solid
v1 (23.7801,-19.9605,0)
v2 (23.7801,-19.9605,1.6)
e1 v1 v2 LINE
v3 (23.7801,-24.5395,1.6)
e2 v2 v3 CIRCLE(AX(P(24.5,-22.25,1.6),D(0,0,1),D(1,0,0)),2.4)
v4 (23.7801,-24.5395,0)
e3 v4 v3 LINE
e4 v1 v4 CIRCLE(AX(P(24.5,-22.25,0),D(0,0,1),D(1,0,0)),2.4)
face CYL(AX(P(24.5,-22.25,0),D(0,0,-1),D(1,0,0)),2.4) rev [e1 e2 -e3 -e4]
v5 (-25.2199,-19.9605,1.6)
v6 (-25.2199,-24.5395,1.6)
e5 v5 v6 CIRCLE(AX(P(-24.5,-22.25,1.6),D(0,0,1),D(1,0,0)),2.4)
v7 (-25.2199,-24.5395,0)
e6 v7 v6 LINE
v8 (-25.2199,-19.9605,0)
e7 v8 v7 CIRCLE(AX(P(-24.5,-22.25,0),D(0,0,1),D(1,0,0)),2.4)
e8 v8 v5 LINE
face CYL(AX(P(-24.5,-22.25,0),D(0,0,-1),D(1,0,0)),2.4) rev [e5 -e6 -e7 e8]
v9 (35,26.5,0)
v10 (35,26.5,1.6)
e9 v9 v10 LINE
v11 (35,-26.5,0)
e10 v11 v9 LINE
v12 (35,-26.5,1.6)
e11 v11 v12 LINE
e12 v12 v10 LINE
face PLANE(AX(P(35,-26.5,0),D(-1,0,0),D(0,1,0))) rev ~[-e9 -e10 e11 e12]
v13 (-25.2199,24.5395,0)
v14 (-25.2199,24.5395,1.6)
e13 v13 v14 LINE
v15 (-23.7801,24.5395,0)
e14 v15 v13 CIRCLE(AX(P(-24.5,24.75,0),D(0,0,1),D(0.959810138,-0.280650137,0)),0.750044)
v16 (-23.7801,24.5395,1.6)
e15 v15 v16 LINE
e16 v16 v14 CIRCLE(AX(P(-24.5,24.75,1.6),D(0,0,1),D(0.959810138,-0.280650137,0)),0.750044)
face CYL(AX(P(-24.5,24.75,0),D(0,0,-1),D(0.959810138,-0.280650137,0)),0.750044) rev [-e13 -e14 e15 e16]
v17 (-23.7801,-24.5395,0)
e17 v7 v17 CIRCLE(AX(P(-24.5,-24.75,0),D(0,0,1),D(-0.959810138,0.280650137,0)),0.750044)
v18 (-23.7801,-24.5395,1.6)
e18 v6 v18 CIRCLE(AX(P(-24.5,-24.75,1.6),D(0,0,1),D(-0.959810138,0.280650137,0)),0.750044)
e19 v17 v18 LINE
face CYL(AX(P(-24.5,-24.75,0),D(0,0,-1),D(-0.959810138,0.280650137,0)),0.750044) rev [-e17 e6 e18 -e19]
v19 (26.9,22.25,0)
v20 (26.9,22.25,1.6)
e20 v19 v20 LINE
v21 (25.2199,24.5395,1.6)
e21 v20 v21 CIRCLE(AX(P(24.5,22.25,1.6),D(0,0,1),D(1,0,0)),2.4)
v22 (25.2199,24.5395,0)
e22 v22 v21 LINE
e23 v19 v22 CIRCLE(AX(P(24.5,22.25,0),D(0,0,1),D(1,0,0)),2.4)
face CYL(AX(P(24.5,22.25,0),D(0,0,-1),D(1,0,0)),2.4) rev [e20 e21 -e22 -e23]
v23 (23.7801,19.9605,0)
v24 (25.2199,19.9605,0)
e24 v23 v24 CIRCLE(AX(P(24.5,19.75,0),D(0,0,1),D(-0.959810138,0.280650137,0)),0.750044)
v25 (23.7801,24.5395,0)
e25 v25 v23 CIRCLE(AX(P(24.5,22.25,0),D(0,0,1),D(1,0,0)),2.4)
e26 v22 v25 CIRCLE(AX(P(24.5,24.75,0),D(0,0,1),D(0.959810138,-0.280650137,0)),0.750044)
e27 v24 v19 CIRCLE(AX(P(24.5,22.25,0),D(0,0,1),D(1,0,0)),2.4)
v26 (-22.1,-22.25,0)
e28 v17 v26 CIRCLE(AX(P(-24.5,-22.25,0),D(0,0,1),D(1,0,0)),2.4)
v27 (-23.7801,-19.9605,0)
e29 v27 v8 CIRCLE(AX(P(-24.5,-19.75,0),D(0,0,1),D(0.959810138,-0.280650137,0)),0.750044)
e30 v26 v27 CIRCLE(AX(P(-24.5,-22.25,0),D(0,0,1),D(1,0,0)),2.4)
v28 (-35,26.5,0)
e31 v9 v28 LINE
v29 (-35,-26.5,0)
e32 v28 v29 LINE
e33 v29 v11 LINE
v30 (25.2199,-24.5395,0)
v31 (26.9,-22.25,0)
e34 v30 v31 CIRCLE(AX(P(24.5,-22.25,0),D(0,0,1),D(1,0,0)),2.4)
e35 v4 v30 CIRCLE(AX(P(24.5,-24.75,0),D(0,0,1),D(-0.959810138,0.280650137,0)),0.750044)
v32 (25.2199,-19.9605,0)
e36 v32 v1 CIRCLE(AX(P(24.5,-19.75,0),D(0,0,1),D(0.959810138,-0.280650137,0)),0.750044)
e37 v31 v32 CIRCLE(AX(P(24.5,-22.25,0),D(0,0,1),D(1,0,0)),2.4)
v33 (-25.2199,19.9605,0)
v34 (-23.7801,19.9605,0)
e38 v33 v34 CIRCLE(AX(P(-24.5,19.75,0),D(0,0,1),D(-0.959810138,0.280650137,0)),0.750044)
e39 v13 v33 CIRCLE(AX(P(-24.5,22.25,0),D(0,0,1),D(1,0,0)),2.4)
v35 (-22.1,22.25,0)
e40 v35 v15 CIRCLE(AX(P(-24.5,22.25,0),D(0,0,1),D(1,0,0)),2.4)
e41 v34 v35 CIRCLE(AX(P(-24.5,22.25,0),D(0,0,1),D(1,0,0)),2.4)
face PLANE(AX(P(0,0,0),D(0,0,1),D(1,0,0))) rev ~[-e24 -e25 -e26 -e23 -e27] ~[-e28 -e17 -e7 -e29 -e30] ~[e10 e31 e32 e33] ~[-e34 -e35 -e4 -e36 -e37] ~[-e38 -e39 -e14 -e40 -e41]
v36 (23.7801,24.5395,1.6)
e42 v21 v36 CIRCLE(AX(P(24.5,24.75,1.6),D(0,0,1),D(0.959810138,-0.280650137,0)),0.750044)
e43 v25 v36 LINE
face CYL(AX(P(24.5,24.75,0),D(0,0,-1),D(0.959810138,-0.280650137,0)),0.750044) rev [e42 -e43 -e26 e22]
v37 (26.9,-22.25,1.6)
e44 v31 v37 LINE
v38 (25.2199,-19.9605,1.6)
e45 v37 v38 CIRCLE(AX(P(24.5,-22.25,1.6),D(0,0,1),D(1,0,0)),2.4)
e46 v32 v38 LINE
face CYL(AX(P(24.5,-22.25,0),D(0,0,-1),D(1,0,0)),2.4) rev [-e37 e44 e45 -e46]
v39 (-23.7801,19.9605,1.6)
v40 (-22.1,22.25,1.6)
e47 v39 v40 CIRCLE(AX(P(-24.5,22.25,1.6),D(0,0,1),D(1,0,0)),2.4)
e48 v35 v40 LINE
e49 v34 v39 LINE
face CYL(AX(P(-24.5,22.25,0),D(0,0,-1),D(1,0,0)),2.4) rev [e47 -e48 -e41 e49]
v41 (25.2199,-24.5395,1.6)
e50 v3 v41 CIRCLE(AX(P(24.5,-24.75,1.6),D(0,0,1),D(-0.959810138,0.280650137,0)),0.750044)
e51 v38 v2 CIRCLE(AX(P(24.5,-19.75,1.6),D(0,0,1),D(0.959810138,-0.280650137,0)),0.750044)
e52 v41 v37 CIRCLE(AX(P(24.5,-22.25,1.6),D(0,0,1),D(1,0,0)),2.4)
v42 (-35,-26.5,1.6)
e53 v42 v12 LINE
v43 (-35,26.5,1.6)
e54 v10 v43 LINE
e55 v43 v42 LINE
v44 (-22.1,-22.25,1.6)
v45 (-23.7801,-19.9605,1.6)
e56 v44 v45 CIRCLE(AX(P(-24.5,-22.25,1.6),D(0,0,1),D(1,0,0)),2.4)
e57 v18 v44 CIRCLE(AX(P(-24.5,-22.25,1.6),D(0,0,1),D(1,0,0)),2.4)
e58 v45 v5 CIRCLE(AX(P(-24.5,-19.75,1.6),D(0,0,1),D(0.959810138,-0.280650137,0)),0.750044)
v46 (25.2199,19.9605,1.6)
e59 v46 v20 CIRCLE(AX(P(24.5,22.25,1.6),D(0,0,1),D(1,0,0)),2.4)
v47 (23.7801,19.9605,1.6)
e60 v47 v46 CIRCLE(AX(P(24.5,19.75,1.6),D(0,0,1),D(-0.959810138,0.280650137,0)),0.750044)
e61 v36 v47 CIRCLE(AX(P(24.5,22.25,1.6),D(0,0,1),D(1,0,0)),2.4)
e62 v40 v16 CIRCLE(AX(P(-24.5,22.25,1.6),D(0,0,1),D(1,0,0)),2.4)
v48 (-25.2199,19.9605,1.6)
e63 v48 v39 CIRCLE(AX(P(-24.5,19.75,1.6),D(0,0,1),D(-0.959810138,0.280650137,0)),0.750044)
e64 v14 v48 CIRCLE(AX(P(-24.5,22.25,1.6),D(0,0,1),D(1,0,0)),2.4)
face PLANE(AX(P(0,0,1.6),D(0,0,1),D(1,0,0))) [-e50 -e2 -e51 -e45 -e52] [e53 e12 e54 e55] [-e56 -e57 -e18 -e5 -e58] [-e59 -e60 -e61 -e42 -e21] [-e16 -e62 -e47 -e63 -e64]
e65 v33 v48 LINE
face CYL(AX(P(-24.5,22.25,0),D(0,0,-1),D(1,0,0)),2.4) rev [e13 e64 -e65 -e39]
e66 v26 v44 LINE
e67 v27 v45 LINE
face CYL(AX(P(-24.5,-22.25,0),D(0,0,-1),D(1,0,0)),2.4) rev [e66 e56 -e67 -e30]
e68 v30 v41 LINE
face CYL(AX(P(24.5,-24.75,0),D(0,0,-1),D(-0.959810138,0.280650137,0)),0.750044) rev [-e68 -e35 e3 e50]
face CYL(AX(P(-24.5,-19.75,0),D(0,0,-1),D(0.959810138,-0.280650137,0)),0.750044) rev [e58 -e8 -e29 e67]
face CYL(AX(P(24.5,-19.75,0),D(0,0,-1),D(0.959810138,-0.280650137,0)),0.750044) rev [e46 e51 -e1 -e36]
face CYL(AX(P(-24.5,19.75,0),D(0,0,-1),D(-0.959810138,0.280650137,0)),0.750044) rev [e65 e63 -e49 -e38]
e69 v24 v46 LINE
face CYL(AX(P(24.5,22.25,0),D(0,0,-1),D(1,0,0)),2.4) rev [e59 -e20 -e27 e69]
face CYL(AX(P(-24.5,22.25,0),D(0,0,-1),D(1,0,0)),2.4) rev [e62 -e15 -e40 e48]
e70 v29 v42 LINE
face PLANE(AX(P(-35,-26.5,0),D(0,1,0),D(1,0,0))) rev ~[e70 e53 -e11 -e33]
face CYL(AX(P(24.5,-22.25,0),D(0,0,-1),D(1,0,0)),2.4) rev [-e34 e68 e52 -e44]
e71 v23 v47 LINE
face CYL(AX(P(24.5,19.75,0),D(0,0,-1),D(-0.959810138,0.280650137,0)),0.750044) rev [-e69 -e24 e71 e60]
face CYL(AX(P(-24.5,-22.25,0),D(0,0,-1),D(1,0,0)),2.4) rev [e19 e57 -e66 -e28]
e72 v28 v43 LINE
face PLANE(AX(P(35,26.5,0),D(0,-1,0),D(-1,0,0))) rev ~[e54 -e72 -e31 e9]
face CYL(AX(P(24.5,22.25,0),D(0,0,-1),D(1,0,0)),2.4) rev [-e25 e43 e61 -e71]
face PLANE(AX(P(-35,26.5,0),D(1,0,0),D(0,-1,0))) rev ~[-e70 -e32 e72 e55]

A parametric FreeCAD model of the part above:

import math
import FreeCAD as App
import Part
import Sketcher


def add_polygon(sketch, points):
    """Adds a closed chain of lines whose ends are joined by coincident constraints."""
    first, n = sketch.GeometryCount, len(points)
    for a, b in zip(points, points[1:] + points[:1]):
        sketch.addGeometry(Part.LineSegment(App.Vector(*a, 0), App.Vector(*b, 0)), False)
    for i in range(n):
        sketch.addConstraint(Sketcher.Constraint("Coincident", first + i, 2, first + (i + 1) % n, 1))

doc = App.newDocument("Part")
body = doc.addObject("PartDesign::Body", "Body")

# Sketch on XY plane
sketch1 = body.newObject("Sketcher::SketchObject", "Sketch")
sketch1.AttachmentSupport = (doc.getObject("XY_Plane"), [""])
sketch1.MapMode = "FlatFace"
add_polygon(sketch1, [(-35, 26.5), (-35, -26.5), (35, -26.5), (35, 26.5)])  # lines 0-3
sketch1.addGeometry(Part.ArcOfCircle(Part.Circle(App.Vector(-24.5, -22.2, 0), App.Vector(0, 0, 1), 2.4), math.radians(-73), math.radians(73)), False)  # 4
sketch1.addGeometry(Part.ArcOfCircle(Part.Circle(App.Vector(-24.5, -24.8, 0), App.Vector(0, 0, 1), 0.8), math.radians(164), math.radians(376)), False)  # 5
sketch1.addGeometry(Part.ArcOfCircle(Part.Circle(App.Vector(-24.5, -22.2, 0), App.Vector(0, 0, 1), 2.4), math.radians(107), math.radians(253)), False)  # 6
sketch1.addGeometry(Part.ArcOfCircle(Part.Circle(App.Vector(-24.5, -19.8, 0), App.Vector(0, 0, 1), 0.8), math.radians(-16), math.radians(196)), False)  # 7
sketch1.addGeometry(Part.ArcOfCircle(Part.Circle(App.Vector(24.5, -22.2, 0), App.Vector(0, 0, 1), 2.4), math.radians(-73), math.radians(73)), False)  # 8
sketch1.addGeometry(Part.ArcOfCircle(Part.Circle(App.Vector(24.5, -24.8, 0), App.Vector(0, 0, 1), 0.8), math.radians(164), math.radians(376)), False)  # 9
sketch1.addGeometry(Part.ArcOfCircle(Part.Circle(App.Vector(24.5, -22.2, 0), App.Vector(0, 0, 1), 2.4), math.radians(107), math.radians(253)), False)  # 10
sketch1.addGeometry(Part.ArcOfCircle(Part.Circle(App.Vector(24.5, -19.8, 0), App.Vector(0, 0, 1), 0.8), math.radians(-16), math.radians(196)), False)  # 11
sketch1.addGeometry(Part.ArcOfCircle(Part.Circle(App.Vector(-24.5, 24.8, 0), App.Vector(0, 0, 1), 0.8), math.radians(-16), math.radians(196)), False)  # 12
sketch1.addGeometry(Part.ArcOfCircle(Part.Circle(App.Vector(-24.5, 22.2, 0), App.Vector(0, 0, 1), 2.4), math.radians(-73), math.radians(73)), False)  # 13
sketch1.addGeometry(Part.ArcOfCircle(Part.Circle(App.Vector(-24.5, 19.8, 0), App.Vector(0, 0, 1), 0.8), math.radians(164), math.radians(376)), False)  # 14
sketch1.addGeometry(Part.ArcOfCircle(Part.Circle(App.Vector(-24.5, 22.2, 0), App.Vector(0, 0, 1), 2.4), math.radians(107), math.radians(253)), False)  # 15
sketch1.addGeometry(Part.ArcOfCircle(Part.Circle(App.Vector(24.5, 22.2, 0), App.Vector(0, 0, 1), 2.4), math.radians(-73), math.radians(73)), False)  # 16
sketch1.addGeometry(Part.ArcOfCircle(Part.Circle(App.Vector(24.5, 19.8, 0), App.Vector(0, 0, 1), 0.8), math.radians(164), math.radians(376)), False)  # 17
sketch1.addGeometry(Part.ArcOfCircle(Part.Circle(App.Vector(24.5, 22.2, 0), App.Vector(0, 0, 1), 2.4), math.radians(107), math.radians(253)), False)  # 18
sketch1.addGeometry(Part.ArcOfCircle(Part.Circle(App.Vector(24.5, 24.8, 0), App.Vector(0, 0, 1), 0.8), math.radians(-16), math.radians(196)), False)  # 19
sketch1.addConstraint(Sketcher.Constraint("Coincident", 4, 1, 5, 2))
sketch1.addConstraint(Sketcher.Constraint("Coincident", 5, 1, 6, 2))
sketch1.addConstraint(Sketcher.Constraint("Coincident", 6, 1, 7, 2))
sketch1.addConstraint(Sketcher.Constraint("Coincident", 7, 1, 4, 2))
sketch1.addConstraint(Sketcher.Constraint("Coincident", 8, 1, 9, 2))
sketch1.addConstraint(Sketcher.Constraint("Coincident", 9, 1, 10, 2))
sketch1.addConstraint(Sketcher.Constraint("Coincident", 10, 1, 11, 2))
sketch1.addConstraint(Sketcher.Constraint("Coincident", 11, 1, 8, 2))
sketch1.addConstraint(Sketcher.Constraint("Coincident", 12, 1, 13, 2))
sketch1.addConstraint(Sketcher.Constraint("Coincident", 13, 1, 14, 2))
sketch1.addConstraint(Sketcher.Constraint("Coincident", 14, 1, 15, 2))
sketch1.addConstraint(Sketcher.Constraint("Coincident", 15, 1, 12, 2))
sketch1.addConstraint(Sketcher.Constraint("Coincident", 16, 1, 17, 2))
sketch1.addConstraint(Sketcher.Constraint("Coincident", 17, 1, 18, 2))
sketch1.addConstraint(Sketcher.Constraint("Coincident", 18, 1, 19, 2))
sketch1.addConstraint(Sketcher.Constraint("Coincident", 19, 1, 16, 2))
sketch1.addConstraint(Sketcher.Constraint("Vertical", 0))
sketch1.addConstraint(Sketcher.Constraint("Horizontal", 1))
sketch1.addConstraint(Sketcher.Constraint("Vertical", 2))
sketch1.addConstraint(Sketcher.Constraint("Horizontal", 3))
sketch1.addConstraint(Sketcher.Constraint("Coincident", 6, 3, 4, 3))
sketch1.addConstraint(Sketcher.Constraint("Coincident", 10, 3, 8, 3))
sketch1.addConstraint(Sketcher.Constraint("Coincident", 15, 3, 13, 3))
sketch1.addConstraint(Sketcher.Constraint("Coincident", 18, 3, 16, 3))
sketch1.addConstraint(Sketcher.Constraint("Equal", 4, 6))
sketch1.addConstraint(Sketcher.Constraint("Equal", 5, 7))
sketch1.addConstraint(Sketcher.Constraint("Equal", 6, 8))
sketch1.addConstraint(Sketcher.Constraint("Equal", 7, 9))
sketch1.addConstraint(Sketcher.Constraint("Equal", 8, 10))
sketch1.addConstraint(Sketcher.Constraint("Equal", 9, 11))
sketch1.addConstraint(Sketcher.Constraint("Equal", 11, 12))
sketch1.addConstraint(Sketcher.Constraint("Equal", 10, 13))
sketch1.addConstraint(Sketcher.Constraint("Equal", 12, 14))
sketch1.addConstraint(Sketcher.Constraint("Equal", 13, 15))
sketch1.addConstraint(Sketcher.Constraint("Equal", 15, 16))
sketch1.addConstraint(Sketcher.Constraint("Equal", 14, 17))
sketch1.addConstraint(Sketcher.Constraint("Equal", 16, 18))
sketch1.addConstraint(Sketcher.Constraint("Equal", 17, 19))
sketch1.addConstraint(Sketcher.Constraint("Symmetric", 9, 3, 12, 3, -1, 1))
sketch1.addConstraint(Sketcher.Constraint("Symmetric", 8, 3, 13, 3, -1, 1))
sketch1.addConstraint(Sketcher.Constraint("Symmetric", 11, 3, 14, 3, -1, 1))
sketch1.addConstraint(Sketcher.Constraint("Symmetric", 4, 3, 16, 3, -1, 1))
sketch1.addConstraint(Sketcher.Constraint("Symmetric", 7, 3, 17, 3, -1, 1))
sketch1.addConstraint(Sketcher.Constraint("Symmetric", 5, 3, 19, 3, -1, 1))
sketch1.addConstraint(Sketcher.Constraint("Symmetric", 0, 2, 2, 2, -1, 1))
sketch1.addConstraint(Sketcher.Constraint("Symmetric", 4, 3, 8, 3, -2))
sketch1.addConstraint(Sketcher.Constraint("Symmetric", 5, 3, 9, 3, -2))
sketch1.addConstraint(Sketcher.Constraint("Symmetric", 7, 3, 11, 3, -2))
sketch1.addConstraint(Sketcher.Constraint("Horizontal", 4, 1, 5, 1))
sketch1.addConstraint(Sketcher.Constraint("Horizontal", 6, 1, 7, 1))
sketch1.addConstraint(Sketcher.Constraint("Vertical", 5, 1, 6, 1))
sketch1.addConstraint(Sketcher.Constraint("Radius", 4, 2.4))
sketch1.addConstraint(Sketcher.Constraint("DistanceX", 1, 1, 1, 2, 70.0))
sketch1.addConstraint(Sketcher.Constraint("DistanceY", 0, 2, 0, 1, 53.0))
sketch1.addConstraint(Sketcher.Constraint("Radius", 5, 0.75))
sketch1.addConstraint(Sketcher.Constraint("DistanceX", 4, 3, 8, 3, 49.0))
sketch1.addConstraint(Sketcher.Constraint("DistanceY", 5, 3, 7, 3, 5.0))
sketch1.addConstraint(Sketcher.Constraint("DistanceY", 4, 3, 12, 3, 47.0))
pad1 = body.newObject("PartDesign::Pad", "Pad")
pad1.Profile = sketch1
pad1.Length = 1.6

doc.recompute()
